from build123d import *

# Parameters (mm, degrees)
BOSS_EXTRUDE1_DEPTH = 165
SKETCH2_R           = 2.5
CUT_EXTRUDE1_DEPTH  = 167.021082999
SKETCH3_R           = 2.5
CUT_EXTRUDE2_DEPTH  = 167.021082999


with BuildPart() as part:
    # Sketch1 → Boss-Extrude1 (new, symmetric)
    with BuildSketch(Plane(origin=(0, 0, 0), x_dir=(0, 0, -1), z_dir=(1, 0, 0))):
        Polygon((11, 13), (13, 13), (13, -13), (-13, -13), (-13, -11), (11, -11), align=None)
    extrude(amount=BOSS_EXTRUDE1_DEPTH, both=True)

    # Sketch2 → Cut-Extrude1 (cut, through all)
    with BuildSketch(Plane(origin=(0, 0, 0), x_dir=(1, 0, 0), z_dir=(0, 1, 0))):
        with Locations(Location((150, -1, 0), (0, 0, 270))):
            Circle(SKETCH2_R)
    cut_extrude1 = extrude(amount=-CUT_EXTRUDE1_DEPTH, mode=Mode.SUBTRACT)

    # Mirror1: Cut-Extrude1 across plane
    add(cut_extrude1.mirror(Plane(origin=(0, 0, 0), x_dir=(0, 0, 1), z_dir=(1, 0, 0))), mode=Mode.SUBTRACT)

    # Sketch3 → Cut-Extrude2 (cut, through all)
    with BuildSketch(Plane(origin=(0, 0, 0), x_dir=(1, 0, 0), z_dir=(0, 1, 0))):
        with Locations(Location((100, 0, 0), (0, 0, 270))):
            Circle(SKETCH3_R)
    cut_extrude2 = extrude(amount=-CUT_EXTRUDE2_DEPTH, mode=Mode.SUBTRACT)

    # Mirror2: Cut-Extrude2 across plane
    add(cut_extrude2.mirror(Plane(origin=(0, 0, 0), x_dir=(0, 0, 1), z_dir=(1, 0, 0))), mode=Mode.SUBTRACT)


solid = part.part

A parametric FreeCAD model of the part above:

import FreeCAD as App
import Part
import Sketcher
from FreeCAD import Vector
Q = App.Units.Quantity


def add_polygon(sketch, points):
    """Adds a closed chain of lines whose ends are joined by coincident constraints."""
    first, n = sketch.GeometryCount, len(points)
    for a, b in zip(points, points[1:] + points[:1]):
        sketch.addGeometry(Part.LineSegment(App.Vector(*a, 0), App.Vector(*b, 0)), False)
    for i in range(n):
        sketch.addConstraint(Sketcher.Constraint("Coincident", first + i, 2, first + (i + 1) % n, 1))

doc = App.newDocument("Part")
body = doc.addObject("PartDesign::Body", "Body")

# Sketch on YZ plane
sketch1 = body.newObject("Sketcher::SketchObject", "Sketch")
sketch1.AttachmentSupport = (doc.getObject("YZ_Plane"), [""])
sketch1.MapMode = "FlatFace"
add_polygon(sketch1, [(13, -13), (13, -11), (-11, -11), (-11, 13), (-13, 13), (-13, -13)])  # lines 0-5
sketch1.addConstraint(Sketcher.Constraint("Vertical", 0))
sketch1.addConstraint(Sketcher.Constraint("Horizontal", 1))
sketch1.addConstraint(Sketcher.Constraint("Vertical", 2))
sketch1.addConstraint(Sketcher.Constraint("Horizontal", 3))
sketch1.addConstraint(Sketcher.Constraint("Vertical", 4))
sketch1.addConstraint(Sketcher.Constraint("Horizontal", 5))
sketch1.addConstraint(Sketcher.Constraint("Symmetric", 3, 2, 5, 2, -1, 1))
sketch1.addConstraint(Sketcher.Constraint("Equal", 3, 0))
sketch1.addConstraint(Sketcher.Constraint("Equal", 1, 2))
sketch1.addConstraint(Sketcher.Constraint("DistanceX", 1, 2, 1, 1, Q("24 mm")))
sketch1.addConstraint(Sketcher.Constraint("DistanceX", 3, 2, 3, 1, Q("2 mm")))
pad1 = body.newObject("PartDesign::Pad", "Pad")
pad1.Profile = sketch1
pad1.Length = 330
pad1.Midplane = True

# Sketch on XZ plane
sketch2 = body.newObject("Sketcher::SketchObject", "Sketch001")
sketch2.AttachmentSupport = (doc.getObject("XZ_Plane"), [""])
sketch2.MapMode = "FlatFace"
sketch2.addGeometry(Part.Circle(Vector(150, 1, 0), Vector(0, 0, 1), 2.5), False)
sketch2.addConstraint(Sketcher.Constraint("Diameter", 0, Q("5 mm")))
sketch2.addConstraint(Sketcher.Constraint("DistanceX", -1, 1, 0, 3, Q("150 mm")))
sketch2.addConstraint(Sketcher.Constraint("DistanceY", -1, 1, 0, 3, Q("1 mm")))
pocket1 = body.newObject("PartDesign::Pocket", "Pocket")
pocket1.Profile = sketch2
pocket1.Type = "ThroughAll"
pocket1.Reversed = True
doc.recompute()

mirrored = body.newObject("PartDesign::Mirrored", "Mirrored")
mirrored.Originals = [pocket1]
mirrored.MirrorPlane = (doc.getObject("YZ_Plane"), [""])
body.Tip = mirrored

# Sketch on XZ plane
sketch3 = body.newObject("Sketcher::SketchObject", "Sketch002")
sketch3.AttachmentSupport = (doc.getObject("XZ_Plane"), [""])
sketch3.MapMode = "FlatFace"
sketch3.addGeometry(Part.Circle(Vector(100, 0, 0), Vector(0, 0, 1), 2.5), False)
sketch3.addConstraint(Sketcher.Constraint("PointOnObject", 0, 3, -1))
sketch3.addConstraint(Sketcher.Constraint("Diameter", 0, Q("5 mm")))
sketch3.addConstraint(Sketcher.Constraint("DistanceX", -1, 1, 0, 3, Q("100 mm")))
pocket2 = body.newObject("PartDesign::Pocket", "Pocket001")
pocket2.Profile = sketch3
pocket2.Type = "ThroughAll"
pocket2.Reversed = True
doc.recompute()

mirrored2 = body.newObject("PartDesign::Mirrored", "Mirrored001")
mirrored2.Originals = [pocket2]
mirrored2.MirrorPlane = (doc.getObject("YZ_Plane"), [""])
body.Tip = mirrored2

doc.recompute()
